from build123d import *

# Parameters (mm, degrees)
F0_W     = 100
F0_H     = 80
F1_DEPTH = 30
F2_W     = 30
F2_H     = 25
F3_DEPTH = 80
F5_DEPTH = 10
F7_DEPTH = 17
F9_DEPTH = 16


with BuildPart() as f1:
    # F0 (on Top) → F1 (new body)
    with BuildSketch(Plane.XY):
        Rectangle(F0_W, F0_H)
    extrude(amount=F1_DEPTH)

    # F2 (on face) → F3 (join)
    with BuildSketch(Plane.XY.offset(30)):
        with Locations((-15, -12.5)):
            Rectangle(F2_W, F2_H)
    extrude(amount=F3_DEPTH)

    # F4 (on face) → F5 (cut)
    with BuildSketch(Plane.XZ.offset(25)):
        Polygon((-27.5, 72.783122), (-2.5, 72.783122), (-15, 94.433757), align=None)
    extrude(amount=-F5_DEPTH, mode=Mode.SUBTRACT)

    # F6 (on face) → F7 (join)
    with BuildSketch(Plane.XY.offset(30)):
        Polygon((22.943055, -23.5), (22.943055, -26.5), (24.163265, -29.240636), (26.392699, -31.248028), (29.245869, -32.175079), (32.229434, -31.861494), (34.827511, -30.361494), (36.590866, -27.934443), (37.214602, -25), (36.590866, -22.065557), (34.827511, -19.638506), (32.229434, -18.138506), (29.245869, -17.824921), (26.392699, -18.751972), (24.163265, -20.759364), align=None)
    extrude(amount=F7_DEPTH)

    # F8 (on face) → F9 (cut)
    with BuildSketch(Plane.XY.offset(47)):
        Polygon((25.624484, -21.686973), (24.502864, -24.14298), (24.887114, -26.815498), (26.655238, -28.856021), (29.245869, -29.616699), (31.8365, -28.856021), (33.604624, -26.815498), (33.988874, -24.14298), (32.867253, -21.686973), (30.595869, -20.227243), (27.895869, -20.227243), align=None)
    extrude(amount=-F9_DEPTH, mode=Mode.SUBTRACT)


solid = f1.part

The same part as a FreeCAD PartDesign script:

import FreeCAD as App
import Part
import Sketcher
Q = App.Units.Quantity


def add_polygon(sketch, points):
    """Adds a closed chain of lines whose ends are joined by coincident constraints."""
    first, n = sketch.GeometryCount, len(points)
    for a, b in zip(points, points[1:] + points[:1]):
        sketch.addGeometry(Part.LineSegment(App.Vector(*a, 0), App.Vector(*b, 0)), False)
    for i in range(n):
        sketch.addConstraint(Sketcher.Constraint("Coincident", first + i, 2, first + (i + 1) % n, 1))

doc = App.newDocument("Part")
params = doc.addObject("Spreadsheet::Sheet", "Params")
for row, (alias, value) in enumerate([
    ("sketch1_width", "100 mm"),
    ("sketch1_height", "80 mm"),
    ("pad1_length", "30 mm"),
    ("sketch2_width", "30 mm"),
    ("sketch2_height", "25 mm"),
    ("pad2_length", "80 mm"),
    ("sketch3_width", "25 mm"),
    ("pocket1_length", "10 mm"),
    ("sketch4_height", "3 mm"),
    ("pad3_length", "17 mm"),
    ("sketch5_width", "2.7 mm"),
    ("sketch5_length", "2.7 mm"),
    ("pocket2_length", "16 mm"),
], start=1):
    params.set(f"A{row}", alias)
    params.set(f"B{row}", "=" + value)
    params.setAlias(f"B{row}", alias)

body = doc.addObject("PartDesign::Body", "Body")

# Sketch on XY plane
sketch1 = body.newObject("Sketcher::SketchObject", "Sketch")
sketch1.AttachmentSupport = (doc.getObject("XY_Plane"), [""])
sketch1.MapMode = "FlatFace"
add_polygon(sketch1, [(-50, 40), (-50, -40), (50, -40), (50, 40)])  # lines 0-3
sketch1.addConstraint([
    Sketcher.Constraint("Vertical", 0),
    Sketcher.Constraint("Horizontal", 1),
    Sketcher.Constraint("Vertical", 2),
    Sketcher.Constraint("Horizontal", 3),
    Sketcher.Constraint("Symmetric", 0, 2, 2, 2, -1, 1),
    Sketcher.Constraint("DistanceX", 1, 1, 1, 2, Q("100 mm")),
    Sketcher.Constraint("DistanceY", 0, 2, 0, 1, Q("80 mm")),
])
sketch1.setExpression("Constraints[9]", "Params.sketch1_width")
sketch1.setExpression("Constraints[10]", "Params.sketch1_height")
pad1 = body.newObject("PartDesign::Pad", "Pad")
pad1.Profile = sketch1
pad1.setExpression("Length", "Params.pad1_length")

# Sketch on XY plane
sketch2 = body.newObject("Sketcher::SketchObject", "Sketch001")
sketch2.AttachmentSupport = (doc.getObject("XY_Plane"), [""])
sketch2.MapMode = "FlatFace"
sketch2.AttachmentOffset = App.Placement(App.Vector(0, 0, 30), App.Rotation())
add_polygon(sketch2, [(-30, 0), (-30, -25), (0, -25), (0, 0)])  # lines 0-3
sketch2.addConstraint([
    Sketcher.Constraint("Vertical", 0),
    Sketcher.Constraint("Horizontal", 1),
    Sketcher.Constraint("Vertical", 2),
    Sketcher.Constraint("Horizontal", 3),
    Sketcher.Constraint("Coincident", 2, 2, -1, 1),
    Sketcher.Constraint("DistanceX", 1, 1, 1, 2, Q("30 mm")),
    Sketcher.Constraint("DistanceY", 0, 2, 0, 1, Q("25 mm")),
])
sketch2.setExpression("Constraints[9]", "Params.sketch2_width")
sketch2.setExpression("Constraints[10]", "Params.sketch2_height")
pad2 = body.newObject("PartDesign::Pad", "Pad001")
pad2.Profile = sketch2
pad2.setExpression("Length", "Params.pad2_length")

# Sketch on XZ plane
sketch3 = body.newObject("Sketcher::SketchObject", "Sketch002")
sketch3.AttachmentSupport = (doc.getObject("XZ_Plane"), [""])
sketch3.MapMode = "FlatFace"
sketch3.AttachmentOffset = App.Placement(App.Vector(0, 0, 25), App.Rotation())
add_polygon(sketch3, [(-28, 73), (-2, 73), (-15, 94)])  # lines 0-2
sketch3.addConstraint([
    Sketcher.Constraint("Horizontal", 0),
    Sketcher.Constraint("Equal", 1, 2),
    Sketcher.Constraint("DistanceX", 0, 1, 0, 2, Q("25 mm")),
    Sketcher.Constraint("Angle", 1, Q("120 deg")),
    Sketcher.Constraint("DistanceX", 1, 2, -1, 1, Q("15 mm")),
    Sketcher.Constraint("DistanceY", -1, 1, 0, 2, Q("72.783122 mm")),
])
sketch3.setExpression("Constraints[5]", "Params.sketch3_width")
pocket1 = body.newObject("PartDesign::Pocket", "Pocket")
pocket1.Profile = sketch3
pocket1.setExpression("Length", "Params.pocket1_length")

# Sketch on XY plane
sketch4 = body.newObject("Sketcher::SketchObject", "Sketch003")
sketch4.AttachmentSupport = (doc.getObject("XY_Plane"), [""])
sketch4.MapMode = "FlatFace"
sketch4.AttachmentOffset = App.Placement(App.Vector(0, 0, 30), App.Rotation())
add_polygon(sketch4, [(22.9, -23.5), (22.9, -26.5), (24.2, -29.2), (26.4, -31.2), (29.2, -32.2), (32.2, -31.9), (34.8, -30.4), (36.6, -27.9), (37.2, -25), (36.6, -22.1), (34.8, -19.6), (32.2, -18.1), (29.2, -17.8), (26.4, -18.8), (24.2, -20.8)])  # lines 0-14
sketch4.addConstraint([
    Sketcher.Constraint("Vertical", 0),
    Sketcher.Constraint("Vertical", 6, 2, 8, 2),
    Sketcher.Constraint("Vertical", 5, 2, 9, 2),
    Sketcher.Constraint("Vertical", 4, 2, 10, 2),
    Sketcher.Constraint("Vertical", 3, 2, 11, 2),
    Sketcher.Constraint("Vertical", 2, 2, 12, 2),
    Sketcher.Constraint("Vertical", 1, 2, 13, 2),
    Sketcher.Constraint("Equal", 1, 2),
    Sketcher.Constraint("Equal", 2, 3),
    Sketcher.Constraint("Equal", 3, 4),
    Sketcher.Constraint("Equal", 4, 5),
    Sketcher.Constraint("Equal", 5, 6),
    Sketcher.Constraint("Equal", 6, 7),
    Sketcher.Constraint("Equal", 7, 8),
    Sketcher.Constraint("Equal", 8, 9),
    Sketcher.Constraint("Equal", 9, 10),
    Sketcher.Constraint("Equal", 10, 11),
    Sketcher.Constraint("Equal", 11, 12),
    Sketcher.Constraint("Equal", 12, 13),
    Sketcher.Constraint("Equal", 13, 14),
    Sketcher.Constraint("DistanceY", 0, 2, 0, 1, Q("3 mm")),
    Sketcher.Constraint("Angle", 1, Q("-65.999996 deg")),
    Sketcher.Constraint("Angle", 2, Q("-42.000009 deg")),
    Sketcher.Constraint("Angle", 3, Q("-17.999998 deg")),
    Sketcher.Constraint("Angle", 4, Q("5.999994 deg")),
    Sketcher.Constraint("Angle", 5, Q("29.999992 deg")),
    Sketcher.Constraint("Angle", 6, Q("54.000012 deg")),
    Sketcher.Constraint("Angle", 7, Q("77.999983 deg")),
    Sketcher.Constraint("DistanceY", 7, 2, -1, 1, Q("25 mm")),
    Sketcher.Constraint("DistanceX", -1, 1, 2, 2, Q("26.392699 mm")),
])
sketch4.setExpression("Constraints[35]", "Params.sketch4_height")
pad3 = body.newObject("PartDesign::Pad", "Pad002")
pad3.Profile = sketch4
pad3.setExpression("Length", "Params.pad3_length")

# Sketch on XY plane
sketch5 = body.newObject("Sketcher::SketchObject", "Sketch004")
sketch5.AttachmentSupport = (doc.getObject("XY_Plane"), [""])
sketch5.MapMode = "FlatFace"
sketch5.AttachmentOffset = App.Placement(App.Vector(0, 0, 47), App.Rotation())
add_polygon(sketch5, [(25.6, -21.7), (24.5, -24.1), (24.9, -26.8), (26.7, -28.9), (29.2, -29.6), (31.8, -28.9), (33.6, -26.8), (34, -24.1), (32.9, -21.7), (30.6, -20.2), (27.9, -20.2)])  # lines 0-10
sketch5.addConstraint([
    Sketcher.Constraint("Horizontal", 9),
    Sketcher.Constraint("Horizontal", 2, 2, 4, 2),
    Sketcher.Constraint("Horizontal", 1, 2, 5, 2),
    Sketcher.Constraint("Horizontal", 0, 2, 6, 2),
    Sketcher.Constraint("Horizontal", 7, 2, 10, 2),
    Sketcher.Constraint("Equal", 0, 1),
    Sketcher.Constraint("Equal", 1, 2),
    Sketcher.Constraint("Equal", 2, 3),
    Sketcher.Constraint("Equal", 3, 4),
    Sketcher.Constraint("Equal", 4, 5),
    Sketcher.Constraint("Equal", 5, 6),
    Sketcher.Constraint("Equal", 6, 7),
    Sketcher.Constraint("Equal", 7, 8),
    Sketcher.Constraint("Equal", 8, 10),
    Sketcher.Constraint("DistanceX", 9, 2, 9, 1, Q("2.7 mm")),
    Sketcher.Constraint("Distance", 0, Q("2.7 mm")),
    Sketcher.Constraint("DistanceY", 1, 2, -1, 1, Q("26.815498 mm")),
    Sketcher.Constraint("DistanceY", 3, 2, -1, 1, Q("29.616699 mm")),
    Sketcher.Constraint("DistanceX", -1, 1, 4, 2, Q("31.8365 mm")),
    Sketcher.Constraint("DistanceY", 0, 2, -1, 1, Q("24.14298 mm")),
    Sketcher.Constraint("DistanceX", -1, 1, 2, 2, Q("26.655238 mm")),
    Sketcher.Constraint("DistanceX", 7, 2, 6, 2, Q("1.121621 mm")),
])
sketch5.setExpression("Constraints[25]", "Params.sketch5_width")
sketch5.setExpression("Constraints[26]", "Params.sketch5_length")
pocket2 = body.newObject("PartDesign::Pocket", "Pocket001")
pocket2.Profile = sketch5
pocket2.setExpression("Length", "Params.pocket2_length")

doc.recompute()
